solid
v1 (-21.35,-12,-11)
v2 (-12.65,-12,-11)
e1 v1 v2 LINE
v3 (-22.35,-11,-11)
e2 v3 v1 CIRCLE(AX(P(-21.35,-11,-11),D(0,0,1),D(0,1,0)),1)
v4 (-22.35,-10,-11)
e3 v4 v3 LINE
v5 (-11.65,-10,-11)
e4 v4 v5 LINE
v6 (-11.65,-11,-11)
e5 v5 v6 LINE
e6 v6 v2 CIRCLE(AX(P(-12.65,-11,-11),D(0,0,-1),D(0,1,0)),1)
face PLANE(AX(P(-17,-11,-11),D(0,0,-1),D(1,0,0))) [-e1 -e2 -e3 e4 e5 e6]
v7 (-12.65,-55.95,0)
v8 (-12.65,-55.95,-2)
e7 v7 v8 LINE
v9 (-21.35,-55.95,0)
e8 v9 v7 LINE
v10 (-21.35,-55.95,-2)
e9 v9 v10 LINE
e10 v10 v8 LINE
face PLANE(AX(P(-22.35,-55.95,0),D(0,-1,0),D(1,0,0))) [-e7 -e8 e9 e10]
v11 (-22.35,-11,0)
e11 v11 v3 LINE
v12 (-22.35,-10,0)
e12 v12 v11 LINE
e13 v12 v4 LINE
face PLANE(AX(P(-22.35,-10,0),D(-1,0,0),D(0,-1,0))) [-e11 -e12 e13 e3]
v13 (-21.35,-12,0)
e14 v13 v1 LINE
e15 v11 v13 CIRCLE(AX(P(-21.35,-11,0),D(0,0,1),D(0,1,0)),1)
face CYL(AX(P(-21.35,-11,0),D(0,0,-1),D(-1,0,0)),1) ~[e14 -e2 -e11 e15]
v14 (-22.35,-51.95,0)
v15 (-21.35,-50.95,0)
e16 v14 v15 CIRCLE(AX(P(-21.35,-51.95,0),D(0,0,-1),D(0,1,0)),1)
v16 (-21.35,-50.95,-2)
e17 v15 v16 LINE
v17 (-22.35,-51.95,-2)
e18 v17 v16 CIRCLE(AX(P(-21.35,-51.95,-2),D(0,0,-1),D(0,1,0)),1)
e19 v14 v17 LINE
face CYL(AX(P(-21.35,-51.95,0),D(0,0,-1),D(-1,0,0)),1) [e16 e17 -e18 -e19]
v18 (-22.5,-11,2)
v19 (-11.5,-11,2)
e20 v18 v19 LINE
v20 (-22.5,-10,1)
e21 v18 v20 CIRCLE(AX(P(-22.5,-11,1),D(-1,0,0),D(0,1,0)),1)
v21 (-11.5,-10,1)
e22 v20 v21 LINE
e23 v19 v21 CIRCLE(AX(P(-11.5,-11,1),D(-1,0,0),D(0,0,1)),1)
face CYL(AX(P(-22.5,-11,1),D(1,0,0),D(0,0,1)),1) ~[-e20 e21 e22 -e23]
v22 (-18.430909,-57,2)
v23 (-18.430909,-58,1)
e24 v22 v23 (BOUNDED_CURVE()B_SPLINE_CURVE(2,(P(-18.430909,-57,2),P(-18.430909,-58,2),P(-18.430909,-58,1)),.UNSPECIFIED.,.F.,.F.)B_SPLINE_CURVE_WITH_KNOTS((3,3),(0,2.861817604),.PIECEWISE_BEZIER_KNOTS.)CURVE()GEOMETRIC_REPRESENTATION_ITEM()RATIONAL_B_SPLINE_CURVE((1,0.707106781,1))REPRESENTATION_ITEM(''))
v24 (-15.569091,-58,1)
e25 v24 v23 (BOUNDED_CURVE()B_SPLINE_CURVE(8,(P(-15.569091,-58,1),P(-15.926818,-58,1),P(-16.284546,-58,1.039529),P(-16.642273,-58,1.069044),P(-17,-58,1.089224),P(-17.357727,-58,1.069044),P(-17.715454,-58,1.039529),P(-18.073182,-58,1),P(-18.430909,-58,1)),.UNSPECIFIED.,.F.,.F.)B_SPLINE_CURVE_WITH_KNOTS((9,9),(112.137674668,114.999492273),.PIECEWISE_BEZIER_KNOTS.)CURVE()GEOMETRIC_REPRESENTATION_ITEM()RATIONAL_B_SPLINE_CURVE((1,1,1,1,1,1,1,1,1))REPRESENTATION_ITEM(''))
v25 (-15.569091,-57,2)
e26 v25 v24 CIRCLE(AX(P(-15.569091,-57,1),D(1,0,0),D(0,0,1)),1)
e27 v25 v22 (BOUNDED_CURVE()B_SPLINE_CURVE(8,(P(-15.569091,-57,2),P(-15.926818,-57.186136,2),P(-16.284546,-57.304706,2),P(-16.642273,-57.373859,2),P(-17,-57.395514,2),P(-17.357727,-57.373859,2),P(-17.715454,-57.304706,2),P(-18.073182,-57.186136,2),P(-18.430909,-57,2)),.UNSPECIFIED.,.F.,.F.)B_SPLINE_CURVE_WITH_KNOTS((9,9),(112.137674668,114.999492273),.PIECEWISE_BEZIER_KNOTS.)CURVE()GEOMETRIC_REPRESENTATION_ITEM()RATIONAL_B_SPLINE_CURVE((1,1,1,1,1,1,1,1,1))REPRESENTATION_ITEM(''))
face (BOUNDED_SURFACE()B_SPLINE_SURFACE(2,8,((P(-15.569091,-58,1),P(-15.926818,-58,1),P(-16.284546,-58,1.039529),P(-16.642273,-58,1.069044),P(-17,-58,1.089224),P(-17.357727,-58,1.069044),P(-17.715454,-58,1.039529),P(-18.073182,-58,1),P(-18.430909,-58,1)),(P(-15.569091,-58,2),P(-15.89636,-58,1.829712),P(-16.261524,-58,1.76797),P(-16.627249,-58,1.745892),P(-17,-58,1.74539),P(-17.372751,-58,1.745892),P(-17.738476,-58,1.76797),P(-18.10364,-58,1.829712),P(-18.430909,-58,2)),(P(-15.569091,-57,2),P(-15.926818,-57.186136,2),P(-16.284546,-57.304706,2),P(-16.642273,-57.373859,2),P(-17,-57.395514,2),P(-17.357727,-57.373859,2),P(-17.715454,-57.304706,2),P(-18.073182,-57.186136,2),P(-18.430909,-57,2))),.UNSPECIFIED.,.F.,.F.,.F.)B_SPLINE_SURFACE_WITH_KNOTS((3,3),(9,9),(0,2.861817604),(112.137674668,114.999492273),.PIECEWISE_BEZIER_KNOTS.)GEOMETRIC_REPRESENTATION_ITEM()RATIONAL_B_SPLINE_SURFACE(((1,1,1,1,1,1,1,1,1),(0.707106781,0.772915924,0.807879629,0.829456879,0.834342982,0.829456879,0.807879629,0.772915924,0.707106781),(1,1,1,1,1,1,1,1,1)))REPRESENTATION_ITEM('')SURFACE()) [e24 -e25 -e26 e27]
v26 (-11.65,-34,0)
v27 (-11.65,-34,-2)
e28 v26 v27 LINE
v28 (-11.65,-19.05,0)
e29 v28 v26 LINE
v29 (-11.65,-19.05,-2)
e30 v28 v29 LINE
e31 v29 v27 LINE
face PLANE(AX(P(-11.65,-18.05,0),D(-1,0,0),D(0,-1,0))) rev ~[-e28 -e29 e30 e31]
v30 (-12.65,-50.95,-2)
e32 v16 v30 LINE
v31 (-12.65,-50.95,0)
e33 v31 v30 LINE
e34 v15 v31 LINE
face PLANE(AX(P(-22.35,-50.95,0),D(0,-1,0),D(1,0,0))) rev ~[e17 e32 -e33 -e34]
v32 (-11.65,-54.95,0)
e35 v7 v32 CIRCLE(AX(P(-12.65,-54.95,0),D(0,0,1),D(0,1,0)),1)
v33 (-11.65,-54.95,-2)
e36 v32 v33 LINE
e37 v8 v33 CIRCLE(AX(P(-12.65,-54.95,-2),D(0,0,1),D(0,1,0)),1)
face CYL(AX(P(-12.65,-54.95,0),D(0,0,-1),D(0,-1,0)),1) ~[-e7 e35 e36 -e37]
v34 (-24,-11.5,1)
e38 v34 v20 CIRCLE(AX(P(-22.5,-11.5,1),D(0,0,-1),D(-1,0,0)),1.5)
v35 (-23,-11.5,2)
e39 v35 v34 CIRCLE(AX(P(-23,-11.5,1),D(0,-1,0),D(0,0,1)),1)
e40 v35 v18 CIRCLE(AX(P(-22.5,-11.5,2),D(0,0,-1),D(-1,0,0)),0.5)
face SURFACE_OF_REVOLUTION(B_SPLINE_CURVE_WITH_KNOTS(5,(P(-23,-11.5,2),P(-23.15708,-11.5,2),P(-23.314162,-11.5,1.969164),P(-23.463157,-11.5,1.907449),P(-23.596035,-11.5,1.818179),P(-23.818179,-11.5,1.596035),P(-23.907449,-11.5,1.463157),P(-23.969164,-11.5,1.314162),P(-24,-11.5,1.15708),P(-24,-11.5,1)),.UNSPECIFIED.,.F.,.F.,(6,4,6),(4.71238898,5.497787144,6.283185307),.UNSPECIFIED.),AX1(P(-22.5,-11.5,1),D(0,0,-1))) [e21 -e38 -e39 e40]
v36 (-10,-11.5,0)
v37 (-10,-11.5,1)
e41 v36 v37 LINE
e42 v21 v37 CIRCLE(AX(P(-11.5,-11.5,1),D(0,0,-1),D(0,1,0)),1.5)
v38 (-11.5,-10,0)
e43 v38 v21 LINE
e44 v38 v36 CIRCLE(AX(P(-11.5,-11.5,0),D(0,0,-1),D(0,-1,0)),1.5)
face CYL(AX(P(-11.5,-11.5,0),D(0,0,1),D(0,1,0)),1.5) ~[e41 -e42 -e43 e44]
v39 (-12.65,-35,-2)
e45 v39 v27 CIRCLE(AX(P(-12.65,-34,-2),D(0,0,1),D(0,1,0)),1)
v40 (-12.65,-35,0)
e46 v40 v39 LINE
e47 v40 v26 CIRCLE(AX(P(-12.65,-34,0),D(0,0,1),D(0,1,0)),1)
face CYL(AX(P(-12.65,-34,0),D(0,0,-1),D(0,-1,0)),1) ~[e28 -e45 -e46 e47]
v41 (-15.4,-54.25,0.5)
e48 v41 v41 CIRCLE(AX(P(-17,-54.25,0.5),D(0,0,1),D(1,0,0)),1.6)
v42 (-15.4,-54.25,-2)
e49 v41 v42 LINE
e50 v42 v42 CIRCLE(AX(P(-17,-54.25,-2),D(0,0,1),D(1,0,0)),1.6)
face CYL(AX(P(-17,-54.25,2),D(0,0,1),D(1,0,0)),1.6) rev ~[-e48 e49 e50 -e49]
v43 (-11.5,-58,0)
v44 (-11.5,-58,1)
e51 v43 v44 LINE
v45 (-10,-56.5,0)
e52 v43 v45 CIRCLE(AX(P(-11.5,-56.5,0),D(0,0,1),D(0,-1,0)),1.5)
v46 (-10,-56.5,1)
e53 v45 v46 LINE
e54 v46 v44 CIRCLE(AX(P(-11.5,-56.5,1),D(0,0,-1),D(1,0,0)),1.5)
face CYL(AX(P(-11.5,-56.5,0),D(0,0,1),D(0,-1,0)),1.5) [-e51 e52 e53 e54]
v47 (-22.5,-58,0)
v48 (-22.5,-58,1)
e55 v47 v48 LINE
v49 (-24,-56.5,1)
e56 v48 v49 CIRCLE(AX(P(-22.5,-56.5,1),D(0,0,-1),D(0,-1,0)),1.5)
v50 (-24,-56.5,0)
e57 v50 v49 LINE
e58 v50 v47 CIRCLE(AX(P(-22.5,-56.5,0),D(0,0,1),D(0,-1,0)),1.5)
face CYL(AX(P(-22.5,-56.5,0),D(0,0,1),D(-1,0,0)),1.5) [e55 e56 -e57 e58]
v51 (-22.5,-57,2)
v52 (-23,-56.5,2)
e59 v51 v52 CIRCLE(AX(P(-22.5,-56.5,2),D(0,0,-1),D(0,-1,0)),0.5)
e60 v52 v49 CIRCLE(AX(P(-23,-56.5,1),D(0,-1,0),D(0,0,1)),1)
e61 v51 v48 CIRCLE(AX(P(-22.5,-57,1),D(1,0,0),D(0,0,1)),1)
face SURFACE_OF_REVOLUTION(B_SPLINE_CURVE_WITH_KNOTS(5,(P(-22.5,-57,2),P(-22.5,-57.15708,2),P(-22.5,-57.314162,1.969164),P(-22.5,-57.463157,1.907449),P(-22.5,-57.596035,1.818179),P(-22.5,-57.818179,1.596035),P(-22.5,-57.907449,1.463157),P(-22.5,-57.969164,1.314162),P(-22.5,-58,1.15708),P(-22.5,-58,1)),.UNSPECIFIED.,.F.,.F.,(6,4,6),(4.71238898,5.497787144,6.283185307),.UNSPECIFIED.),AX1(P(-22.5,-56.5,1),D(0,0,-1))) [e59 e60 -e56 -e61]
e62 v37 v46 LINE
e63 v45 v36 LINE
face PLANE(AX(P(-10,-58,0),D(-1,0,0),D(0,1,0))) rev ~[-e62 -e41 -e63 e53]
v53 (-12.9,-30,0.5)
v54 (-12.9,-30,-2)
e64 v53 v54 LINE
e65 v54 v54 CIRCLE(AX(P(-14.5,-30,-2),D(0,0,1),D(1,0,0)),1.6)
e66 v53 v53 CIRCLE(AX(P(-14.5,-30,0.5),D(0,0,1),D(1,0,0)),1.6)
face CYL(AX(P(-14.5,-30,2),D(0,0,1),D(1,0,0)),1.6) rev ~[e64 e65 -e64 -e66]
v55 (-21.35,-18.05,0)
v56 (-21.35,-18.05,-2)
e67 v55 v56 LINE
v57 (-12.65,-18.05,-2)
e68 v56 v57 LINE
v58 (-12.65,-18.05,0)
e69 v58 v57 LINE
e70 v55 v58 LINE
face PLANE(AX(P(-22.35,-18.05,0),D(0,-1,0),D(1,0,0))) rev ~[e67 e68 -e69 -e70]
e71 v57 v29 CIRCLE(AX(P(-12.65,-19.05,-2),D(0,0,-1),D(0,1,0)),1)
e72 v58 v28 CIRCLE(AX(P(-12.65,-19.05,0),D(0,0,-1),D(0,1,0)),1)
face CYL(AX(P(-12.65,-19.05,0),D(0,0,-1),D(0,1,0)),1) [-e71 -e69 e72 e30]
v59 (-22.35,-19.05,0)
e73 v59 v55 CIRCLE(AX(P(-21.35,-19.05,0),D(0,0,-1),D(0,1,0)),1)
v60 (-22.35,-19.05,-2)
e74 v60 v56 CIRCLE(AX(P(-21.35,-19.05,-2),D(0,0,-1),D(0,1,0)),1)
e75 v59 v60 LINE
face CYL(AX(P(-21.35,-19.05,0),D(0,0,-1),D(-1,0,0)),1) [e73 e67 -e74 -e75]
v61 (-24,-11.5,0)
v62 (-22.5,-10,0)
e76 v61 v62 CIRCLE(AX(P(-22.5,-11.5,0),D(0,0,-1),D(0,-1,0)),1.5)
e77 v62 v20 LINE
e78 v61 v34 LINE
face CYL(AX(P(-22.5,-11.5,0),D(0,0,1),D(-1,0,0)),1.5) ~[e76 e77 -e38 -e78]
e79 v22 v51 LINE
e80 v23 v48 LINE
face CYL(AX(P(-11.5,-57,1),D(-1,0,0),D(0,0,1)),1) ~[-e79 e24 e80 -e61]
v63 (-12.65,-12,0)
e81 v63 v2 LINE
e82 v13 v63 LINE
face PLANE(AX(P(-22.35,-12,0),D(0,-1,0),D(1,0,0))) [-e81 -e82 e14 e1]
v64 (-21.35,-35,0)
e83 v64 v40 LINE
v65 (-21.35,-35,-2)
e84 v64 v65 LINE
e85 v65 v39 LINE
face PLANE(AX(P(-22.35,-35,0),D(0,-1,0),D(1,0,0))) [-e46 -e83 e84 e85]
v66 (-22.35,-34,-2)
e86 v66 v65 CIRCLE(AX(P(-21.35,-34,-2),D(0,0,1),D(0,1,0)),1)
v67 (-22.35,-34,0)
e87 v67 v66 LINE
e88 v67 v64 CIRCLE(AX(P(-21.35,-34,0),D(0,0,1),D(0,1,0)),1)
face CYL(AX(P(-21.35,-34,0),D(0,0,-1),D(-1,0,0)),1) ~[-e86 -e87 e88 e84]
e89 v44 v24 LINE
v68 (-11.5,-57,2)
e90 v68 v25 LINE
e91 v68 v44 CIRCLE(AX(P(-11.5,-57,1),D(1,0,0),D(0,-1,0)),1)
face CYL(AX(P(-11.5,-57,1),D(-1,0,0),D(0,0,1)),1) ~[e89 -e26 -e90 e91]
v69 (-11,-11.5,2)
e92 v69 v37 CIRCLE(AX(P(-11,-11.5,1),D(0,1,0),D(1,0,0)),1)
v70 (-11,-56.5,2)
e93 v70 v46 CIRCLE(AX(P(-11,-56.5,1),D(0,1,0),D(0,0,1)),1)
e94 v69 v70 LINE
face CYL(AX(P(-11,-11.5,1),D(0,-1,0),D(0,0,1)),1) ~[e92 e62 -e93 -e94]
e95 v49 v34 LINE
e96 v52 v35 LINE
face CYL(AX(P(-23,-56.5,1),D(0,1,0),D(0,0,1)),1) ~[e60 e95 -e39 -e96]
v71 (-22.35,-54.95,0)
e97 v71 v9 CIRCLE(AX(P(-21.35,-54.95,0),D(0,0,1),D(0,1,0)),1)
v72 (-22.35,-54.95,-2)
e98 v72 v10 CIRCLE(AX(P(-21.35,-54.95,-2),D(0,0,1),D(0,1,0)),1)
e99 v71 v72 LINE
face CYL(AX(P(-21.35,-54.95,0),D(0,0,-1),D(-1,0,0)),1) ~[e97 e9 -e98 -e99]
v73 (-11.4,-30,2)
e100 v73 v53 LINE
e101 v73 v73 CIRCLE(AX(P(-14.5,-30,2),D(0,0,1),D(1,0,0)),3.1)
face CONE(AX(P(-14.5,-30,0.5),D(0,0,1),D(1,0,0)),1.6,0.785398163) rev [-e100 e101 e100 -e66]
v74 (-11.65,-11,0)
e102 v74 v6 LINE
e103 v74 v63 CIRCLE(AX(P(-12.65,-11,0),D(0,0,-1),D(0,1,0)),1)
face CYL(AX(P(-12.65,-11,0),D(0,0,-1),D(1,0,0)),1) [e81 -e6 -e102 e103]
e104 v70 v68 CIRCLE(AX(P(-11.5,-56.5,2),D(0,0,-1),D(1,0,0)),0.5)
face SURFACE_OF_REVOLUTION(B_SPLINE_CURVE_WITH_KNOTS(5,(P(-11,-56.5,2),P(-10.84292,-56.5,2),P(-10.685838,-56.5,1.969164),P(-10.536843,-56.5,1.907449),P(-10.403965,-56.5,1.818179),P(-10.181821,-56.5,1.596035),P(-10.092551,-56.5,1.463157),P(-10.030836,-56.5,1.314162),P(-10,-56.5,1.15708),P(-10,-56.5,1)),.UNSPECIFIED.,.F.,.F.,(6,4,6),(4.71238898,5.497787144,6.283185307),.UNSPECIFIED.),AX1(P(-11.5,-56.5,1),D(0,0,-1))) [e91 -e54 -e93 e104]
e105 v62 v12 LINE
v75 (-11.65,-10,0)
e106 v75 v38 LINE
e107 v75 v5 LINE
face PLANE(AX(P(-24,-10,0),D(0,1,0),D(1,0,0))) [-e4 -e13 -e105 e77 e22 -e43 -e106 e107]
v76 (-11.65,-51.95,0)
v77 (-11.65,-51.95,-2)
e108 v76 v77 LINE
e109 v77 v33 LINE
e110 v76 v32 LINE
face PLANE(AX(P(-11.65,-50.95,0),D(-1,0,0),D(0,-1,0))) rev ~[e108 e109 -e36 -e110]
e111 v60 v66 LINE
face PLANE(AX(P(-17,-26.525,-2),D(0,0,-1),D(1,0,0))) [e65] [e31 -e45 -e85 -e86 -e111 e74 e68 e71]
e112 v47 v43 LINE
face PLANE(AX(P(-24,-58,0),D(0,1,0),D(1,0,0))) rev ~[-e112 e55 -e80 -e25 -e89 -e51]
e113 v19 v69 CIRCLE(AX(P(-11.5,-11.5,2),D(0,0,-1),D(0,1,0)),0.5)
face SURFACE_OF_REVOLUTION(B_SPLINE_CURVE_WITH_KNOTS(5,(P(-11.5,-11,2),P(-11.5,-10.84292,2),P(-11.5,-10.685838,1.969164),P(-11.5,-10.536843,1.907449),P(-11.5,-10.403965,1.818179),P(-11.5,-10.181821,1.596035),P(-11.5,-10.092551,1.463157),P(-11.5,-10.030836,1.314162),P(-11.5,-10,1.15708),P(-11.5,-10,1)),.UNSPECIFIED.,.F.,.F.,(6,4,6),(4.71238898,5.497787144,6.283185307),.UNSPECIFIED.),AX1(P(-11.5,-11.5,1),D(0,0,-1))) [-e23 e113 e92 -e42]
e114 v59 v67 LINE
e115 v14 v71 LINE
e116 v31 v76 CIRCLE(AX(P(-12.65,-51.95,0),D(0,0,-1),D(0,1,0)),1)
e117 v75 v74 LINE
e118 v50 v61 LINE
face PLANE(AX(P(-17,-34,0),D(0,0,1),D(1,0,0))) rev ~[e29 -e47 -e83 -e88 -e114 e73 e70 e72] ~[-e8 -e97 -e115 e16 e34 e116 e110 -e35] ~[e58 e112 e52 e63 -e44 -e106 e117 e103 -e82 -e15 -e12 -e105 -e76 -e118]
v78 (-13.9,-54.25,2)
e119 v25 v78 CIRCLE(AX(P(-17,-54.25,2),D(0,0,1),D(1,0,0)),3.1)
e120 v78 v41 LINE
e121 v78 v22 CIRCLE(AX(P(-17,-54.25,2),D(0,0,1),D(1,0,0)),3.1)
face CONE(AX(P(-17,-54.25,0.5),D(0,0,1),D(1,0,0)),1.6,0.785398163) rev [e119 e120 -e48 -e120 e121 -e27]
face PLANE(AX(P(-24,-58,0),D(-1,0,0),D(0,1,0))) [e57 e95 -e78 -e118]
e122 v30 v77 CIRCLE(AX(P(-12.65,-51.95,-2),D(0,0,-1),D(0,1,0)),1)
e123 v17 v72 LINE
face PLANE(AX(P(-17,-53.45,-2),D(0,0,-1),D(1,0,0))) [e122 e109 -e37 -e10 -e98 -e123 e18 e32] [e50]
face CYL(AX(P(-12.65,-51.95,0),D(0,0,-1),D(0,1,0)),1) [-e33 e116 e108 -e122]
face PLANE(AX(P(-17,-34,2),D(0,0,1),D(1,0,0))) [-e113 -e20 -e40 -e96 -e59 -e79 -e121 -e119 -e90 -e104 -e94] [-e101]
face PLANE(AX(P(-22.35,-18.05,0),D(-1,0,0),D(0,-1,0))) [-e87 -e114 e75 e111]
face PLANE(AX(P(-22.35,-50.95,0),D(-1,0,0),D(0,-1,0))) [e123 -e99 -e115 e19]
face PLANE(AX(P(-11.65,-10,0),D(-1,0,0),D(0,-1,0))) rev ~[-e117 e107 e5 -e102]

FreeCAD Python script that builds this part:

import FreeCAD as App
import Part
import Sketcher
Q = App.Units.Quantity


def edges_at(feature, points):
    """Names of the edges that pass closest to the given points."""
    edges = feature.Shape.Edges
    near = lambda p: min(range(len(edges)), key=lambda i: edges[i].distToShape(Part.Vertex(*p))[0])
    return sorted({f"Edge{near(p) + 1}" for p in points})

doc = App.newDocument("Part")
body = doc.addObject("PartDesign::Body", "Body")

sketch1 = body.newObject("Sketcher::SketchObject", "Sketch")
sketch1.AttachmentSupport = (doc.getObject("XY_Plane"), [""])
sketch1.MapMode = "FlatFace"
sketch1.addGeometry([
    Part.LineSegment(App.Vector(-24, -10, 0), App.Vector(-24, -58, 0)),
    Part.LineSegment(App.Vector(-24, -58, 0), App.Vector(-10, -58, 0)),
    Part.LineSegment(App.Vector(-10, -58, 0), App.Vector(-10, -10, 0)),
    Part.LineSegment(App.Vector(-10, -10, 0), App.Vector(-24, -10, 0)),
], False)
sketch1.addConstraint([
    Sketcher.Constraint("Coincident", 0, 2, 1, 1),
    Sketcher.Constraint("Coincident", 1, 2, 2, 1),
    Sketcher.Constraint("Coincident", 2, 2, 3, 1),
    Sketcher.Constraint("Coincident", 3, 2, 0, 1),
    Sketcher.Constraint("Vertical", 0),
    Sketcher.Constraint("Horizontal", 1),
    Sketcher.Constraint("Vertical", 2),
    Sketcher.Constraint("Horizontal", 3),
    Sketcher.Constraint("DistanceX", 1, 1, 1, 2, Q("14 mm")),
    Sketcher.Constraint("DistanceY", 0, 2, 0, 1, Q("48 mm")),
    Sketcher.Constraint("DistanceX", 0, 2, -1, 1, Q("24 mm")),
    Sketcher.Constraint("DistanceY", 0, 2, -1, 1, Q("58 mm")),
])
pad1 = body.newObject("PartDesign::Pad", "Pad")
pad1.Profile = sketch1
pad1.Length = 2

sketch2 = body.newObject("Sketcher::SketchObject", "Sketch001")
sketch2.AttachmentSupport = (doc.getObject("XY_Plane"), [""])
sketch2.MapMode = "FlatFace"
sketch2.addGeometry([
    Part.LineSegment(App.Vector(-22, -35, 0), App.Vector(-22, -18, 0)),
    Part.LineSegment(App.Vector(-22, -18, 0), App.Vector(-12, -18, 0)),
    Part.LineSegment(App.Vector(-12, -18, 0), App.Vector(-12, -35, 0)),
    Part.LineSegment(App.Vector(-12, -35, 0), App.Vector(-22, -35, 0)),
    Part.LineSegment(App.Vector(-22, -56, 0), App.Vector(-22, -51, 0)),
    Part.LineSegment(App.Vector(-22, -51, 0), App.Vector(-12, -51, 0)),
    Part.LineSegment(App.Vector(-12, -51, 0), App.Vector(-12, -56, 0)),
    Part.LineSegment(App.Vector(-12, -56, 0), App.Vector(-22, -56, 0)),
], False)
sketch2.addConstraint([
    Sketcher.Constraint("Coincident", 0, 2, 1, 1),
    Sketcher.Constraint("Coincident", 1, 2, 2, 1),
    Sketcher.Constraint("Coincident", 2, 2, 3, 1),
    Sketcher.Constraint("Coincident", 3, 2, 0, 1),
    Sketcher.Constraint("Coincident", 4, 2, 5, 1),
    Sketcher.Constraint("Coincident", 5, 2, 6, 1),
    Sketcher.Constraint("Coincident", 6, 2, 7, 1),
    Sketcher.Constraint("Coincident", 7, 2, 4, 1),
    Sketcher.Constraint("Vertical", 0),
    Sketcher.Constraint("Horizontal", 1),
    Sketcher.Constraint("Vertical", 2),
    Sketcher.Constraint("Horizontal", 3),
    Sketcher.Constraint("Vertical", 4),
    Sketcher.Constraint("Horizontal", 5),
    Sketcher.Constraint("Vertical", 6),
    Sketcher.Constraint("Horizontal", 7),
    Sketcher.Constraint("Vertical", 3, 2, 4, 2),
    Sketcher.Constraint("Vertical", 2, 2, 5, 2),
    Sketcher.Constraint("DistanceY", 4, 1, 4, 2, Q("5 mm")),
    Sketcher.Constraint("DistanceX", 1, 1, 1, 2, Q("10.7 mm")),
    Sketcher.Constraint("DistanceY", 2, 2, -1, 1, Q("35 mm")),
    Sketcher.Constraint("DistanceY", 0, 1, 0, 2, Q("16.95 mm")),
    Sketcher.Constraint("DistanceY", 4, 2, 0, 2, Q("32.9 mm")),
    Sketcher.Constraint("DistanceX", 0, 2, -1, 1, Q("22.35 mm")),
])
pad2 = body.newObject("PartDesign::Pad", "Pad001")
pad2.Profile = sketch2
pad2.Length = 2
pad2.Reversed = True

sketch3 = body.newObject("Sketcher::SketchObject", "Sketch002")
sketch3.AttachmentSupport = (doc.getObject("XY_Plane"), [""])
sketch3.MapMode = "FlatFace"
sketch3.addGeometry([
    Part.LineSegment(App.Vector(-22.4, -12, 0), App.Vector(-22.4, -10, 0)),
    Part.LineSegment(App.Vector(-22.4, -10, 0), App.Vector(-11.7, -10, 0)),
    Part.LineSegment(App.Vector(-11.7, -10, 0), App.Vector(-11.7, -12, 0)),
    Part.LineSegment(App.Vector(-11.7, -12, 0), App.Vector(-22.4, -12, 0)),
], False)
sketch3.addConstraint([
    Sketcher.Constraint("Coincident", 0, 2, 1, 1),
    Sketcher.Constraint("Coincident", 1, 2, 2, 1),
    Sketcher.Constraint("Coincident", 2, 2, 3, 1),
    Sketcher.Constraint("Coincident", 3, 2, 0, 1),
    Sketcher.Constraint("Vertical", 0),
    Sketcher.Constraint("Horizontal", 1),
    Sketcher.Constraint("Vertical", 2),
    Sketcher.Constraint("Horizontal", 3),
    Sketcher.Constraint("DistanceY", 0, 1, 0, 2, Q("2 mm")),
    Sketcher.Constraint("DistanceX", 1, 1, 1, 2, Q("10.7 mm")),
    Sketcher.Constraint("DistanceY", 0, 2, -1, 1, Q("10 mm")),
    Sketcher.Constraint("DistanceX", 0, 2, -1, 1, Q("22.35 mm")),
])
pad3 = body.newObject("PartDesign::Pad", "Pad002")
pad3.Profile = sketch3
pad3.Length = 11
pad3.Reversed = True

sketch4 = body.newObject("Sketcher::SketchObject", "Sketch003")
sketch4.AttachmentSupport = (doc.getObject("XY_Plane"), [""])
sketch4.MapMode = "FlatFace"
sketch4.AttachmentOffset = App.Placement(App.Vector(0, 0, 2), App.Rotation())
sketch4.addGeometry([
    Part.Circle(App.Vector(-14.5, -30, 0), App.Vector(0, 0, 1), 1.6),
    Part.Circle(App.Vector(-17, -54.2, 0), App.Vector(0, 0, 1), 1.6),
], False)
sketch4.addConstraint([
    Sketcher.Constraint("Equal", 0, 1),
    Sketcher.Constraint("Diameter", 0, Q("3.2 mm")),
    Sketcher.Constraint("DistanceY", 0, 3, -1, 1, Q("30 mm")),
    Sketcher.Constraint("DistanceX", 1, 3, -1, 1, Q("17 mm")),
    Sketcher.Constraint("DistanceX", 0, 3, -1, 1, Q("14.5 mm")),
    Sketcher.Constraint("DistanceY", 1, 3, -1, 1, Q("54.25 mm")),
])
pocket1 = body.newObject("PartDesign::Pocket", "Pocket")
pocket1.Profile = sketch4
pocket1.Length = 5
doc.recompute()

chamfer = body.newObject("PartDesign::Chamfer", "Chamfer")
chamfer.Base = (pocket1, edges_at(pocket1, [(-16.1, -30, 2), (-18.6, -54.25, 2)]))
chamfer.Size = 1.5
doc.recompute()

fillet = body.newObject("PartDesign::Fillet", "Fillet")
fillet.Base = (chamfer, edges_at(chamfer, [
    (-10, -58, 1),
    (-24, -58, 1),
    (-24, -10, 1),
    (-10, -10, 1),
]))
fillet.Radius = 1.5
doc.recompute()

fillet2 = body.newObject("PartDesign::Fillet", "Fillet001")
fillet2.Base = (fillet, edges_at(fillet, [(-24, -34, 2)]))
fillet2.Radius = 1
doc.recompute()

fillet3 = body.newObject("PartDesign::Fillet", "Fillet002")
fillet3.Base = (fillet2, edges_at(fillet2, [
    (-22.35, -55.95, -1),
    (-11.65, -55.95, -1),
    (-22.35, -35, -1),
    (-11.65, -35, -1),
    (-11.65, -12, -5.5),
    (-22.35, -12, -5.5),
    (-11.65, -18.05, -1),
    (-22.35, -18.05, -1),
    (-22.35, -50.95, -1),
    (-11.65, -50.95, -1),
]))
fillet3.Radius = 1

doc.recompute()
